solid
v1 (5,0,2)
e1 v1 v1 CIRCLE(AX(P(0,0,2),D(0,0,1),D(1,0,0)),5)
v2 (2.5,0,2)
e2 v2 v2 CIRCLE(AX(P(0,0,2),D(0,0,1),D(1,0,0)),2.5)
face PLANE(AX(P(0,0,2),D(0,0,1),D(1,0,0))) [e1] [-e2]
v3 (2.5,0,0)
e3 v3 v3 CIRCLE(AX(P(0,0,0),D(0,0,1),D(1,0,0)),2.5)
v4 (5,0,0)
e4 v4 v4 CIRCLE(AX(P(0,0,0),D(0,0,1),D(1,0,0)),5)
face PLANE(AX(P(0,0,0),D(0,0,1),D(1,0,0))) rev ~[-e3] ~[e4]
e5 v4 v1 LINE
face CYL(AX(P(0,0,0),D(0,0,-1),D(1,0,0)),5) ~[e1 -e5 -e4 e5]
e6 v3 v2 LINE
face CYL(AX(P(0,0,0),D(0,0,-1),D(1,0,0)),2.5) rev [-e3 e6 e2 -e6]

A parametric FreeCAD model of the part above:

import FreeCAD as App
import Part
import Sketcher

V = App.Vector
Q = App.Units.Quantity

doc = App.newDocument("Part")
body = doc.addObject("PartDesign::Body", "Body")

sketch1 = body.newObject("Sketcher::SketchObject", "Sketch")
sketch1.AttachmentSupport = (doc.getObject("XY_Plane"), [""])
sketch1.MapMode = "FlatFace"
sketch1.addGeometry(Part.Circle(V(0, 0, 0), V(0, 0, 1), 5), False)
sketch1.addGeometry(Part.Circle(V(0, 0, 0), V(0, 0, 1), 2.5), False)
sketch1.addConstraint(Sketcher.Constraint("Coincident", 0, 3, -1, 1))
sketch1.addConstraint(Sketcher.Constraint("Coincident", 1, 3, -1, 1))
sketch1.addConstraint(Sketcher.Constraint("Diameter", 0, Q("10 mm")))
sketch1.addConstraint(Sketcher.Constraint("Diameter", 1, Q("5 mm")))
pad1 = body.newObject("PartDesign::Pad", "Pad")
pad1.Profile = sketch1
pad1.Length = 2

doc.recompute()
